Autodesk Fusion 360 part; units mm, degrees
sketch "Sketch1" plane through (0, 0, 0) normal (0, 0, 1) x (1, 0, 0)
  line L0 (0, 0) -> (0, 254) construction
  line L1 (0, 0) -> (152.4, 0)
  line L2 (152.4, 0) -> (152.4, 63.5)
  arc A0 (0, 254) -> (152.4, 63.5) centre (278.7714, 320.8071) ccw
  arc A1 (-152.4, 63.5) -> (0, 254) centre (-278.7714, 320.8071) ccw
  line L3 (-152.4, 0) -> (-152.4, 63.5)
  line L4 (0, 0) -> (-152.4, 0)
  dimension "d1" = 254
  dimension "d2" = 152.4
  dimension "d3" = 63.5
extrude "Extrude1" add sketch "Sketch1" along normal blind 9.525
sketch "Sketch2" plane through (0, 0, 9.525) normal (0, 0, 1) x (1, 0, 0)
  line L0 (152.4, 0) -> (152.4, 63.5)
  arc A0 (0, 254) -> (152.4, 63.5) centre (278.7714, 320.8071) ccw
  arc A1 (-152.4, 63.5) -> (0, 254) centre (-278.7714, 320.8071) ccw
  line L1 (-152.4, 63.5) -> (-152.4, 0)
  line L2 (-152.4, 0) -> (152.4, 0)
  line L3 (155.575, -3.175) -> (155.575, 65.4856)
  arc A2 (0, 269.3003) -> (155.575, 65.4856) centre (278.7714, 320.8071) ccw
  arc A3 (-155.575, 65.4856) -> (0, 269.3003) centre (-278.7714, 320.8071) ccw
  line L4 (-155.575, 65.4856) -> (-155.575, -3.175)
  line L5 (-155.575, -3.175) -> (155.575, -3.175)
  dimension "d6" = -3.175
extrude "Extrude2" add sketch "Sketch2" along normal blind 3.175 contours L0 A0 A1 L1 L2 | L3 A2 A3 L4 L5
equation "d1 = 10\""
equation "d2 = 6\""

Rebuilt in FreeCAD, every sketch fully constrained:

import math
import FreeCAD as App
import Part
import Sketcher
Q = App.Units.Quantity

doc = App.newDocument("Part")
params = doc.addObject("Spreadsheet::Sheet", "Params")
for row, (alias, value) in enumerate([
    ("sketch1_height", "2.5 in"),
    ("pad1_length", "0.375 in"),
    ("sketch2_width", "12.25 in"),
    ("pad2_length", "0.125 in"),
], start=1):
    params.set(f"A{row}", alias)
    params.set(f"B{row}", "=" + value)
    params.setAlias(f"B{row}", alias)

body = doc.addObject("PartDesign::Body", "Body")

# Sketch on XY plane
sketch1 = body.newObject("Sketcher::SketchObject", "Sketch")
sketch1.AttachmentSupport = (doc.getObject("XY_Plane"), [""])
sketch1.MapMode = "FlatFace"
sketch1.addGeometry([
    Part.LineSegment(App.Vector(-152.4, 0, 0), App.Vector(152.4, 0, 0)),  # 0
    Part.LineSegment(App.Vector(152.4, 0, 0), App.Vector(152.4, 63.5, 0)),  # 1
    Part.ArcOfCircle(Part.Circle(App.Vector(278.7714, 320.8071, 0), App.Vector(0, 0, 1), 286.664756), math.radians(-166.52332), math.radians(-116.157069)),  # 2
    Part.ArcOfCircle(Part.Circle(App.Vector(-278.7714, 320.8071, 0), App.Vector(0, 0, 1), 286.664742), math.radians(-63.842931), math.radians(-13.47668)),  # 3
    Part.LineSegment(App.Vector(-152.4, 63.5, 0), App.Vector(-152.4, 0, 0)),  # 4
], False)
sketch1.addConstraint([
    Sketcher.Constraint("Coincident", 0, 2, 1, 1),
    Sketcher.Constraint("Coincident", 1, 2, 2, 2),
    Sketcher.Constraint("Coincident", 2, 1, 3, 2),
    Sketcher.Constraint("Coincident", 3, 1, 4, 1),
    Sketcher.Constraint("Coincident", 4, 2, 0, 1),
    Sketcher.Constraint("Horizontal", 0),
    Sketcher.Constraint("Vertical", 1),
    Sketcher.Constraint("Vertical", 4),
    Sketcher.Constraint("Equal", 2, 3),
    Sketcher.Constraint("Symmetric", 0, 2, 4, 2, -1, 1),
    Sketcher.Constraint("Symmetric", 2, 3, 3, 3, -2),
    Sketcher.Constraint("DistanceY", 1, 1, 1, 2, Q("2.5 in")),
    Sketcher.Constraint("DistanceX", -1, 1, 0, 2, Q("6 in")),
    Sketcher.Constraint("DistanceY", -1, 1, 2, 1, Q("10 in")),
    Sketcher.Constraint("Radius", 2, 286.6648),
])
sketch1.setExpression("Constraints[11]", "Params.sketch1_height")
pad1 = body.newObject("PartDesign::Pad", "Pad")
pad1.Profile = sketch1
pad1.setExpression("Length", "Params.pad1_length")

# Sketch on XY plane
sketch2 = body.newObject("Sketcher::SketchObject", "Sketch001")
sketch2.AttachmentSupport = (doc.getObject("XY_Plane"), [""])
sketch2.MapMode = "FlatFace"
sketch2.AttachmentOffset = App.Placement(App.Vector(0, 0, 0.375 * 25.4), App.Rotation())
sketch2.addGeometry([
    Part.LineSegment(App.Vector(-155.575, -3.175, 0), App.Vector(155.575, -3.175, 0)),  # 0
    Part.LineSegment(App.Vector(155.575, -3.175, 0), App.Vector(155.575, 65.4856, 0)),  # 1
    Part.ArcOfCircle(Part.Circle(App.Vector(278.7714, 320.8071, 0), App.Vector(0, 0, 1), 283.48976), math.radians(-169.53188), math.radians(-115.757997)),  # 2
    Part.ArcOfCircle(Part.Circle(App.Vector(-278.7714, 320.8071, 0), App.Vector(0, 0, 1), 283.48972), math.radians(-64.242003), math.radians(-10.46812)),  # 3
    Part.LineSegment(App.Vector(-155.575, 65.4856, 0), App.Vector(-155.575, -3.175, 0)),  # 4
], False)
sketch2.addConstraint([
    Sketcher.Constraint("Coincident", 0, 2, 1, 1),
    Sketcher.Constraint("Coincident", 1, 2, 2, 2),
    Sketcher.Constraint("Coincident", 2, 1, 3, 2),
    Sketcher.Constraint("Coincident", 3, 1, 4, 1),
    Sketcher.Constraint("Coincident", 4, 2, 0, 1),
    Sketcher.Constraint("Horizontal", 0),
    Sketcher.Constraint("Vertical", 1),
    Sketcher.Constraint("Vertical", 4),
    Sketcher.Constraint("Equal", 2, 3),
    Sketcher.Constraint("Symmetric", 2, 3, 3, 3, -2),
    Sketcher.Constraint("Horizontal", 1, 2, 3, 1),
    Sketcher.Constraint("DistanceY", 0, 2, -1, 1, Q("0.125 in")),
    Sketcher.Constraint("DistanceX", 0, 1, 0, 2, Q("12.25 in")),
    Sketcher.Constraint("Radius", 2, 283.4898),
    Sketcher.Constraint("DistanceY", 1, 1, 1, 2, 68.6606),
    Sketcher.Constraint("DistanceY", -1, 1, 2, 3, Q("12.6302 in")),
])
sketch2.setExpression("Constraints[12]", "Params.sketch2_width")
pad2 = body.newObject("PartDesign::Pad", "Pad001")
pad2.Profile = sketch2
pad2.setExpression("Length", "Params.pad2_length")

doc.recompute()
